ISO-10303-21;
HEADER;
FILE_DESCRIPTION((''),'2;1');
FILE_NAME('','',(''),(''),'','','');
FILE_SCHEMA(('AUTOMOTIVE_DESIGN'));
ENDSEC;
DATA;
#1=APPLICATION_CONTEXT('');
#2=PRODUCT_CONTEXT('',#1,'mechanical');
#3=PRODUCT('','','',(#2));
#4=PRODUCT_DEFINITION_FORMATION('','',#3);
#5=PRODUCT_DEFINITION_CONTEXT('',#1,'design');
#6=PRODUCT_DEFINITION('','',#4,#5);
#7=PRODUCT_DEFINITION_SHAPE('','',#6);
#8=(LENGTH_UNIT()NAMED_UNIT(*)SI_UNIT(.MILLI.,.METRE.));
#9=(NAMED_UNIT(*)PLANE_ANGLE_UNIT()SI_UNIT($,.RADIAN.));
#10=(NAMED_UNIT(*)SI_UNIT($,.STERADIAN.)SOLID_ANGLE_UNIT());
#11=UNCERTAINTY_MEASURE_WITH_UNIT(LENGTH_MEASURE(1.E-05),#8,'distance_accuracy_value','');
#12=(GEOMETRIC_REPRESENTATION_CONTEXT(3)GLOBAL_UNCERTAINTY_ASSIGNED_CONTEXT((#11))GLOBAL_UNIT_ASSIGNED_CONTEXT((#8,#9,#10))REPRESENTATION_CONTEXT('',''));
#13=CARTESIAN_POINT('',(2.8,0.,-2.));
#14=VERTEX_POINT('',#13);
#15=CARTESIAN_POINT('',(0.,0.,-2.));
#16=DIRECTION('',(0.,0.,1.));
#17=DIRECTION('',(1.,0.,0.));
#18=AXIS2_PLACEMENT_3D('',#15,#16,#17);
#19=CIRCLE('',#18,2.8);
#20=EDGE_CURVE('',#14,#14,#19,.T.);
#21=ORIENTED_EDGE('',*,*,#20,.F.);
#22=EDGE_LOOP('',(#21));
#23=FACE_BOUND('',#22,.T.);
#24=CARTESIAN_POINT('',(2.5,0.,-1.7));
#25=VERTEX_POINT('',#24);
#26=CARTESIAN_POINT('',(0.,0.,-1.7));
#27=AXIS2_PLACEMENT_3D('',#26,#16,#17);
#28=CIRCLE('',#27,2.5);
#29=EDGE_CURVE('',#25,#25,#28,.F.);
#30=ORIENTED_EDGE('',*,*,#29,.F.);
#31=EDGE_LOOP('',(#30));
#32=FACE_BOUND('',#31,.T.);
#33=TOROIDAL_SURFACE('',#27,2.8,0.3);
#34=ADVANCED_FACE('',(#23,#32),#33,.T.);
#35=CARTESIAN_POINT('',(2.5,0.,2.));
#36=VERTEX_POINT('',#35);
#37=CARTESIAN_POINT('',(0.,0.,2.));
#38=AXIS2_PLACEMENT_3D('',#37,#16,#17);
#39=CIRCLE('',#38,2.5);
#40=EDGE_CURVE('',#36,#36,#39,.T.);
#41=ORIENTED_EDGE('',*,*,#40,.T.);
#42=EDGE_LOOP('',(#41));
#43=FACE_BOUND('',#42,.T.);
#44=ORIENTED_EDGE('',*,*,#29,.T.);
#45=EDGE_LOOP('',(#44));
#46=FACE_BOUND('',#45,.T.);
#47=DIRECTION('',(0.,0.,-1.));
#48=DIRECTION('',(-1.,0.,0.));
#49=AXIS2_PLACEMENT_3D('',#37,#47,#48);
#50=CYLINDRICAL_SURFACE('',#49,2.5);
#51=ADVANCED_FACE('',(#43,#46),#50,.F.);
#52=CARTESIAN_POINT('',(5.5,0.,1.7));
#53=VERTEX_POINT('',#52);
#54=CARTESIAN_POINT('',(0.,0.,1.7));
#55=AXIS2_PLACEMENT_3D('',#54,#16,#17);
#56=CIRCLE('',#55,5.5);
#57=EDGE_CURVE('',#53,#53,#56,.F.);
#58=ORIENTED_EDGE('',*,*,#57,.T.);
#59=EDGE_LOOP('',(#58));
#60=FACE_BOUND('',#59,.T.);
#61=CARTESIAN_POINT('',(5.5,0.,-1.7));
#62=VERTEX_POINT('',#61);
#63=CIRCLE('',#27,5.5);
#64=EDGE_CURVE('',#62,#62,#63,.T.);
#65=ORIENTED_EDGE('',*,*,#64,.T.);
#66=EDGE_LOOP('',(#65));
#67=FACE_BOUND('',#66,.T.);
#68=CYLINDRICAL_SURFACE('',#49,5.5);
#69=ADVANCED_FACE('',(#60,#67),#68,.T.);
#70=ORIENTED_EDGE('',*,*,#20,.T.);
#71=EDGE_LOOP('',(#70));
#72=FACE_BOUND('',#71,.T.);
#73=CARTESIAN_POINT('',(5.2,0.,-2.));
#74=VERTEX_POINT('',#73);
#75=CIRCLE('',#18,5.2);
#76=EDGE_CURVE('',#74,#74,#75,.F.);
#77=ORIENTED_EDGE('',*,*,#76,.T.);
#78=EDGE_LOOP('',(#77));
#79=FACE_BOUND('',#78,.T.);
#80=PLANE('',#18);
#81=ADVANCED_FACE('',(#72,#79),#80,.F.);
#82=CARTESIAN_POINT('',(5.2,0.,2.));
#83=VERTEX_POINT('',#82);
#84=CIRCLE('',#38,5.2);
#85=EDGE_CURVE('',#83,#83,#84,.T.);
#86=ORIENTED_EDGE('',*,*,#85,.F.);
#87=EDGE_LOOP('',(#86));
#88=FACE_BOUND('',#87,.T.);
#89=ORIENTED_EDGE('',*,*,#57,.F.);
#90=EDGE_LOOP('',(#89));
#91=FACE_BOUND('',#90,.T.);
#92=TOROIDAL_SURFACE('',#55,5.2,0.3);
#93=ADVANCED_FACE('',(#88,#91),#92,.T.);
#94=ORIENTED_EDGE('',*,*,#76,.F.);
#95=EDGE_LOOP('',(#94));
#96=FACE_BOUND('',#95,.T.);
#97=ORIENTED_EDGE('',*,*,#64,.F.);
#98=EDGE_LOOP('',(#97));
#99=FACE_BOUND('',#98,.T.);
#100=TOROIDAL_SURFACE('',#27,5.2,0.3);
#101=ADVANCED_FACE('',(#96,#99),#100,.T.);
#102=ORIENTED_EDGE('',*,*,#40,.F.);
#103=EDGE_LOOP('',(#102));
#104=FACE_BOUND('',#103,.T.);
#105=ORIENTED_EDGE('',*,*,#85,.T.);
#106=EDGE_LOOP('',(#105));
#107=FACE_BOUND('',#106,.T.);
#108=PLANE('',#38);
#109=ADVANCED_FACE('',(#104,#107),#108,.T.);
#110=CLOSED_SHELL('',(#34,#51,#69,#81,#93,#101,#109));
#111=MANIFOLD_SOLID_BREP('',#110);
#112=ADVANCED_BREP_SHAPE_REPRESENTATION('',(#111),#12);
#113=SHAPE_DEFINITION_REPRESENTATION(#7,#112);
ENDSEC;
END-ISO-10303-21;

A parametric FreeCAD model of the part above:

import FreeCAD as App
import Part
import Sketcher
Q = App.Units.Quantity


def edges_at(feature, points):
    """Names of the edges that pass closest to the given points."""
    edges = feature.Shape.Edges
    near = lambda p: min(range(len(edges)), key=lambda i: edges[i].distToShape(Part.Vertex(*p))[0])
    return sorted({f"Edge{near(p) + 1}" for p in points})

doc = App.newDocument("Part")
body = doc.addObject("PartDesign::Body", "Body")

# Sketch on XY plane
sketch1 = body.newObject("Sketcher::SketchObject", "Sketch")
sketch1.AttachmentSupport = (doc.getObject("XY_Plane"), [""])
sketch1.MapMode = "FlatFace"
sketch1.addGeometry(Part.Circle(App.Vector(0, 0, 0), App.Vector(0, 0, 1), 5.5), False)
sketch1.addGeometry(Part.Circle(App.Vector(0, 0, 0), App.Vector(0, 0, 1), 2.5), False)
sketch1.addConstraint(Sketcher.Constraint("Coincident", 0, 3, -1, 1))
sketch1.addConstraint(Sketcher.Constraint("Coincident", 1, 3, -1, 1))
sketch1.addConstraint(Sketcher.Constraint("Diameter", 0, Q("11 mm")))
sketch1.addConstraint(Sketcher.Constraint("Diameter", 1, Q("5 mm")))
pad1 = body.newObject("PartDesign::Pad", "Pad")
pad1.Profile = sketch1
pad1.Length = 4
pad1.Midplane = True
doc.recompute()

fillet = body.newObject("PartDesign::Fillet", "Fillet")
fillet.Base = (pad1, edges_at(pad1, [(-5.5, 0, -2), (-5.5, 0, 2), (-2.5, 0, -2)]))
fillet.Radius = 0.3

doc.recompute()
